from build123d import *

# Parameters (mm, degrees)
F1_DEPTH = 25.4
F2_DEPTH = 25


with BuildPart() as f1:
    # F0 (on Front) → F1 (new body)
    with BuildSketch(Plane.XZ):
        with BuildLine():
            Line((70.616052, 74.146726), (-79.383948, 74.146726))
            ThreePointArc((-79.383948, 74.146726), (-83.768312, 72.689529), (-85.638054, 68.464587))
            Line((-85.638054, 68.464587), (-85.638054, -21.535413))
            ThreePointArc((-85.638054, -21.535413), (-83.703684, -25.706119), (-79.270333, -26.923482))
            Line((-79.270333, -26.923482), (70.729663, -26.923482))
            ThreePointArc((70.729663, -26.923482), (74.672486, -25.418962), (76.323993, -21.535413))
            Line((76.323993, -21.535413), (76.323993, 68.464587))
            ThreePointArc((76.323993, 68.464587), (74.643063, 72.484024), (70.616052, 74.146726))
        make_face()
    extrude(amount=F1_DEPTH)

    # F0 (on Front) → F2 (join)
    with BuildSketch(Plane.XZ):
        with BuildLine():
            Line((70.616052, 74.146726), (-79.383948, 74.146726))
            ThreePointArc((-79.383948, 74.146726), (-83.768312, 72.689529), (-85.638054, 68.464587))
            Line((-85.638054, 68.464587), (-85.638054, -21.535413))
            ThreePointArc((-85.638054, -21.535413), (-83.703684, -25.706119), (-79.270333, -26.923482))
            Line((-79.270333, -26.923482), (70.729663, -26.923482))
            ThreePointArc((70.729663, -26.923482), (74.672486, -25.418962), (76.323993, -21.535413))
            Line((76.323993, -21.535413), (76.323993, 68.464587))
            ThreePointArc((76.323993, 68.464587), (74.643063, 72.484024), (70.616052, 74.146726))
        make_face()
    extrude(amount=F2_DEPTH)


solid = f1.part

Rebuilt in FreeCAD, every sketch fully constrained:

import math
import FreeCAD as App
import Part
import Sketcher

V = App.Vector
Q = App.Units.Quantity

doc = App.newDocument("Part")
body = doc.addObject("PartDesign::Body", "Body")

sketch1 = doc.addObject("Sketcher::SketchObject", "Sketch")
body.addObject(sketch1)
sketch1.AttachmentSupport = (doc.XZ_Plane, [""])
sketch1.MapMode = "FlatFace"
sketch1.addGeometry([
    Part.LineSegment(V(71, 74, 0), V(-79, 74, 0)),
    Part.ArcOfCircle(Part.Circle(V(-80, 68, 0), V(0, 0, 1), 6), math.radians(85), math.radians(180)),
    Part.LineSegment(V(-86, 68, 0), V(-86, -22, 0)),
    Part.ArcOfCircle(Part.Circle(V(-80, -22, 0), V(0, 0, 1), 5), math.radians(-180), math.radians(-80)),
    Part.LineSegment(V(-79, -27, 0), V(71, -27, 0)),
    Part.ArcOfCircle(Part.Circle(V(71, -22, 0), V(0, 0, 1), 5), math.radians(-92), math.radians(0)),
    Part.LineSegment(V(76, -22, 0), V(76, 68, 0)),
    Part.ArcOfCircle(Part.Circle(V(71, 68, 0), V(0, 0, 1), 6), math.radians(0), math.radians(90)),
], False)
sketch1.addConstraint([
    Sketcher.Constraint("Coincident", 0, 2, 1, 1),
    Sketcher.Constraint("Tangent", 1, 2, 2, 1),
    Sketcher.Constraint("Tangent", 2, 2, 3, 1),
    Sketcher.Constraint("Coincident", 3, 2, 4, 1),
    Sketcher.Constraint("Coincident", 4, 2, 5, 1),
    Sketcher.Constraint("Tangent", 5, 2, 6, 1),
    Sketcher.Constraint("Coincident", 6, 2, 7, 1),
    Sketcher.Constraint("Tangent", 7, 2, 0, 1),
    Sketcher.Constraint("Horizontal", 0),
    Sketcher.Constraint("Vertical", 2),
    Sketcher.Constraint("Horizontal", 4),
    Sketcher.Constraint("Vertical", 6),
    Sketcher.Constraint("Horizontal", 3, 3, 5, 3),
    Sketcher.Constraint("Horizontal", 1, 2, 6, 2),
    Sketcher.Constraint("DistanceX", 0, 2, 0, 1, Q("150 mm")),
    Sketcher.Constraint("DistanceY", 2, 2, 2, 1, Q("90 mm")),
    Sketcher.Constraint("Radius", 7, Q("5.708002 mm")),
    Sketcher.Constraint("Radius", 5, Q("5.391871 mm")),
    Sketcher.Constraint("Radius", 1, Q("5.708294 mm")),
    Sketcher.Constraint("Radius", 3, Q("5.463428 mm")),
    Sketcher.Constraint("DistanceX", 4, 1, 4, 2, Q("149.999996 mm")),
    Sketcher.Constraint("DistanceX", 1, 3, -1, 1, Q("79.92976 mm")),
    Sketcher.Constraint("DistanceX", -1, 1, 5, 3, Q("70.932122 mm")),
    Sketcher.Constraint("DistanceY", 4, 2, -1, 1, Q("26.923482 mm")),
])
pad1 = doc.addObject("PartDesign::Pad", "Pad")
body.addObject(pad1)
pad1.Profile = sketch1
pad1.Length = 25.4

sketch2 = doc.addObject("Sketcher::SketchObject", "Sketch001")
body.addObject(sketch2)
sketch2.AttachmentSupport = (doc.XZ_Plane, [""])
sketch2.MapMode = "FlatFace"
sketch2.addGeometry([
    Part.LineSegment(V(71, 74, 0), V(-79, 74, 0)),
    Part.ArcOfCircle(Part.Circle(V(-80, 68, 0), V(0, 0, 1), 6), math.radians(85), math.radians(180)),
    Part.LineSegment(V(-86, 68, 0), V(-86, -22, 0)),
    Part.ArcOfCircle(Part.Circle(V(-80, -22, 0), V(0, 0, 1), 5), math.radians(-180), math.radians(-80)),
    Part.LineSegment(V(-79, -27, 0), V(71, -27, 0)),
    Part.ArcOfCircle(Part.Circle(V(71, -22, 0), V(0, 0, 1), 5), math.radians(-92), math.radians(0)),
    Part.LineSegment(V(76, -22, 0), V(76, 68, 0)),
    Part.ArcOfCircle(Part.Circle(V(71, 68, 0), V(0, 0, 1), 6), math.radians(0), math.radians(90)),
], False)
sketch2.addConstraint([
    Sketcher.Constraint("Coincident", 0, 2, 1, 1),
    Sketcher.Constraint("Tangent", 1, 2, 2, 1),
    Sketcher.Constraint("Tangent", 2, 2, 3, 1),
    Sketcher.Constraint("Coincident", 3, 2, 4, 1),
    Sketcher.Constraint("Coincident", 4, 2, 5, 1),
    Sketcher.Constraint("Tangent", 5, 2, 6, 1),
    Sketcher.Constraint("Coincident", 6, 2, 7, 1),
    Sketcher.Constraint("Tangent", 7, 2, 0, 1),
    Sketcher.Constraint("Horizontal", 0),
    Sketcher.Constraint("Vertical", 2),
    Sketcher.Constraint("Horizontal", 4),
    Sketcher.Constraint("Vertical", 6),
    Sketcher.Constraint("Horizontal", 3, 3, 5, 3),
    Sketcher.Constraint("Horizontal", 1, 2, 6, 2),
    Sketcher.Constraint("DistanceX", 0, 2, 0, 1, Q("150 mm")),
    Sketcher.Constraint("DistanceY", 2, 2, 2, 1, Q("90 mm")),
    Sketcher.Constraint("Radius", 7, Q("5.708002 mm")),
    Sketcher.Constraint("Radius", 5, Q("5.391871 mm")),
    Sketcher.Constraint("Radius", 1, Q("5.708294 mm")),
    Sketcher.Constraint("Radius", 3, Q("5.463428 mm")),
    Sketcher.Constraint("DistanceX", 4, 1, 4, 2, Q("149.999996 mm")),
    Sketcher.Constraint("DistanceX", 1, 3, -1, 1, Q("79.92976 mm")),
    Sketcher.Constraint("DistanceX", -1, 1, 5, 3, Q("70.932122 mm")),
    Sketcher.Constraint("DistanceY", 4, 2, -1, 1, Q("26.923482 mm")),
])
pad2 = doc.addObject("PartDesign::Pad", "Pad001")
body.addObject(pad2)
pad2.Profile = sketch2
pad2.Length = 25

doc.recompute()
